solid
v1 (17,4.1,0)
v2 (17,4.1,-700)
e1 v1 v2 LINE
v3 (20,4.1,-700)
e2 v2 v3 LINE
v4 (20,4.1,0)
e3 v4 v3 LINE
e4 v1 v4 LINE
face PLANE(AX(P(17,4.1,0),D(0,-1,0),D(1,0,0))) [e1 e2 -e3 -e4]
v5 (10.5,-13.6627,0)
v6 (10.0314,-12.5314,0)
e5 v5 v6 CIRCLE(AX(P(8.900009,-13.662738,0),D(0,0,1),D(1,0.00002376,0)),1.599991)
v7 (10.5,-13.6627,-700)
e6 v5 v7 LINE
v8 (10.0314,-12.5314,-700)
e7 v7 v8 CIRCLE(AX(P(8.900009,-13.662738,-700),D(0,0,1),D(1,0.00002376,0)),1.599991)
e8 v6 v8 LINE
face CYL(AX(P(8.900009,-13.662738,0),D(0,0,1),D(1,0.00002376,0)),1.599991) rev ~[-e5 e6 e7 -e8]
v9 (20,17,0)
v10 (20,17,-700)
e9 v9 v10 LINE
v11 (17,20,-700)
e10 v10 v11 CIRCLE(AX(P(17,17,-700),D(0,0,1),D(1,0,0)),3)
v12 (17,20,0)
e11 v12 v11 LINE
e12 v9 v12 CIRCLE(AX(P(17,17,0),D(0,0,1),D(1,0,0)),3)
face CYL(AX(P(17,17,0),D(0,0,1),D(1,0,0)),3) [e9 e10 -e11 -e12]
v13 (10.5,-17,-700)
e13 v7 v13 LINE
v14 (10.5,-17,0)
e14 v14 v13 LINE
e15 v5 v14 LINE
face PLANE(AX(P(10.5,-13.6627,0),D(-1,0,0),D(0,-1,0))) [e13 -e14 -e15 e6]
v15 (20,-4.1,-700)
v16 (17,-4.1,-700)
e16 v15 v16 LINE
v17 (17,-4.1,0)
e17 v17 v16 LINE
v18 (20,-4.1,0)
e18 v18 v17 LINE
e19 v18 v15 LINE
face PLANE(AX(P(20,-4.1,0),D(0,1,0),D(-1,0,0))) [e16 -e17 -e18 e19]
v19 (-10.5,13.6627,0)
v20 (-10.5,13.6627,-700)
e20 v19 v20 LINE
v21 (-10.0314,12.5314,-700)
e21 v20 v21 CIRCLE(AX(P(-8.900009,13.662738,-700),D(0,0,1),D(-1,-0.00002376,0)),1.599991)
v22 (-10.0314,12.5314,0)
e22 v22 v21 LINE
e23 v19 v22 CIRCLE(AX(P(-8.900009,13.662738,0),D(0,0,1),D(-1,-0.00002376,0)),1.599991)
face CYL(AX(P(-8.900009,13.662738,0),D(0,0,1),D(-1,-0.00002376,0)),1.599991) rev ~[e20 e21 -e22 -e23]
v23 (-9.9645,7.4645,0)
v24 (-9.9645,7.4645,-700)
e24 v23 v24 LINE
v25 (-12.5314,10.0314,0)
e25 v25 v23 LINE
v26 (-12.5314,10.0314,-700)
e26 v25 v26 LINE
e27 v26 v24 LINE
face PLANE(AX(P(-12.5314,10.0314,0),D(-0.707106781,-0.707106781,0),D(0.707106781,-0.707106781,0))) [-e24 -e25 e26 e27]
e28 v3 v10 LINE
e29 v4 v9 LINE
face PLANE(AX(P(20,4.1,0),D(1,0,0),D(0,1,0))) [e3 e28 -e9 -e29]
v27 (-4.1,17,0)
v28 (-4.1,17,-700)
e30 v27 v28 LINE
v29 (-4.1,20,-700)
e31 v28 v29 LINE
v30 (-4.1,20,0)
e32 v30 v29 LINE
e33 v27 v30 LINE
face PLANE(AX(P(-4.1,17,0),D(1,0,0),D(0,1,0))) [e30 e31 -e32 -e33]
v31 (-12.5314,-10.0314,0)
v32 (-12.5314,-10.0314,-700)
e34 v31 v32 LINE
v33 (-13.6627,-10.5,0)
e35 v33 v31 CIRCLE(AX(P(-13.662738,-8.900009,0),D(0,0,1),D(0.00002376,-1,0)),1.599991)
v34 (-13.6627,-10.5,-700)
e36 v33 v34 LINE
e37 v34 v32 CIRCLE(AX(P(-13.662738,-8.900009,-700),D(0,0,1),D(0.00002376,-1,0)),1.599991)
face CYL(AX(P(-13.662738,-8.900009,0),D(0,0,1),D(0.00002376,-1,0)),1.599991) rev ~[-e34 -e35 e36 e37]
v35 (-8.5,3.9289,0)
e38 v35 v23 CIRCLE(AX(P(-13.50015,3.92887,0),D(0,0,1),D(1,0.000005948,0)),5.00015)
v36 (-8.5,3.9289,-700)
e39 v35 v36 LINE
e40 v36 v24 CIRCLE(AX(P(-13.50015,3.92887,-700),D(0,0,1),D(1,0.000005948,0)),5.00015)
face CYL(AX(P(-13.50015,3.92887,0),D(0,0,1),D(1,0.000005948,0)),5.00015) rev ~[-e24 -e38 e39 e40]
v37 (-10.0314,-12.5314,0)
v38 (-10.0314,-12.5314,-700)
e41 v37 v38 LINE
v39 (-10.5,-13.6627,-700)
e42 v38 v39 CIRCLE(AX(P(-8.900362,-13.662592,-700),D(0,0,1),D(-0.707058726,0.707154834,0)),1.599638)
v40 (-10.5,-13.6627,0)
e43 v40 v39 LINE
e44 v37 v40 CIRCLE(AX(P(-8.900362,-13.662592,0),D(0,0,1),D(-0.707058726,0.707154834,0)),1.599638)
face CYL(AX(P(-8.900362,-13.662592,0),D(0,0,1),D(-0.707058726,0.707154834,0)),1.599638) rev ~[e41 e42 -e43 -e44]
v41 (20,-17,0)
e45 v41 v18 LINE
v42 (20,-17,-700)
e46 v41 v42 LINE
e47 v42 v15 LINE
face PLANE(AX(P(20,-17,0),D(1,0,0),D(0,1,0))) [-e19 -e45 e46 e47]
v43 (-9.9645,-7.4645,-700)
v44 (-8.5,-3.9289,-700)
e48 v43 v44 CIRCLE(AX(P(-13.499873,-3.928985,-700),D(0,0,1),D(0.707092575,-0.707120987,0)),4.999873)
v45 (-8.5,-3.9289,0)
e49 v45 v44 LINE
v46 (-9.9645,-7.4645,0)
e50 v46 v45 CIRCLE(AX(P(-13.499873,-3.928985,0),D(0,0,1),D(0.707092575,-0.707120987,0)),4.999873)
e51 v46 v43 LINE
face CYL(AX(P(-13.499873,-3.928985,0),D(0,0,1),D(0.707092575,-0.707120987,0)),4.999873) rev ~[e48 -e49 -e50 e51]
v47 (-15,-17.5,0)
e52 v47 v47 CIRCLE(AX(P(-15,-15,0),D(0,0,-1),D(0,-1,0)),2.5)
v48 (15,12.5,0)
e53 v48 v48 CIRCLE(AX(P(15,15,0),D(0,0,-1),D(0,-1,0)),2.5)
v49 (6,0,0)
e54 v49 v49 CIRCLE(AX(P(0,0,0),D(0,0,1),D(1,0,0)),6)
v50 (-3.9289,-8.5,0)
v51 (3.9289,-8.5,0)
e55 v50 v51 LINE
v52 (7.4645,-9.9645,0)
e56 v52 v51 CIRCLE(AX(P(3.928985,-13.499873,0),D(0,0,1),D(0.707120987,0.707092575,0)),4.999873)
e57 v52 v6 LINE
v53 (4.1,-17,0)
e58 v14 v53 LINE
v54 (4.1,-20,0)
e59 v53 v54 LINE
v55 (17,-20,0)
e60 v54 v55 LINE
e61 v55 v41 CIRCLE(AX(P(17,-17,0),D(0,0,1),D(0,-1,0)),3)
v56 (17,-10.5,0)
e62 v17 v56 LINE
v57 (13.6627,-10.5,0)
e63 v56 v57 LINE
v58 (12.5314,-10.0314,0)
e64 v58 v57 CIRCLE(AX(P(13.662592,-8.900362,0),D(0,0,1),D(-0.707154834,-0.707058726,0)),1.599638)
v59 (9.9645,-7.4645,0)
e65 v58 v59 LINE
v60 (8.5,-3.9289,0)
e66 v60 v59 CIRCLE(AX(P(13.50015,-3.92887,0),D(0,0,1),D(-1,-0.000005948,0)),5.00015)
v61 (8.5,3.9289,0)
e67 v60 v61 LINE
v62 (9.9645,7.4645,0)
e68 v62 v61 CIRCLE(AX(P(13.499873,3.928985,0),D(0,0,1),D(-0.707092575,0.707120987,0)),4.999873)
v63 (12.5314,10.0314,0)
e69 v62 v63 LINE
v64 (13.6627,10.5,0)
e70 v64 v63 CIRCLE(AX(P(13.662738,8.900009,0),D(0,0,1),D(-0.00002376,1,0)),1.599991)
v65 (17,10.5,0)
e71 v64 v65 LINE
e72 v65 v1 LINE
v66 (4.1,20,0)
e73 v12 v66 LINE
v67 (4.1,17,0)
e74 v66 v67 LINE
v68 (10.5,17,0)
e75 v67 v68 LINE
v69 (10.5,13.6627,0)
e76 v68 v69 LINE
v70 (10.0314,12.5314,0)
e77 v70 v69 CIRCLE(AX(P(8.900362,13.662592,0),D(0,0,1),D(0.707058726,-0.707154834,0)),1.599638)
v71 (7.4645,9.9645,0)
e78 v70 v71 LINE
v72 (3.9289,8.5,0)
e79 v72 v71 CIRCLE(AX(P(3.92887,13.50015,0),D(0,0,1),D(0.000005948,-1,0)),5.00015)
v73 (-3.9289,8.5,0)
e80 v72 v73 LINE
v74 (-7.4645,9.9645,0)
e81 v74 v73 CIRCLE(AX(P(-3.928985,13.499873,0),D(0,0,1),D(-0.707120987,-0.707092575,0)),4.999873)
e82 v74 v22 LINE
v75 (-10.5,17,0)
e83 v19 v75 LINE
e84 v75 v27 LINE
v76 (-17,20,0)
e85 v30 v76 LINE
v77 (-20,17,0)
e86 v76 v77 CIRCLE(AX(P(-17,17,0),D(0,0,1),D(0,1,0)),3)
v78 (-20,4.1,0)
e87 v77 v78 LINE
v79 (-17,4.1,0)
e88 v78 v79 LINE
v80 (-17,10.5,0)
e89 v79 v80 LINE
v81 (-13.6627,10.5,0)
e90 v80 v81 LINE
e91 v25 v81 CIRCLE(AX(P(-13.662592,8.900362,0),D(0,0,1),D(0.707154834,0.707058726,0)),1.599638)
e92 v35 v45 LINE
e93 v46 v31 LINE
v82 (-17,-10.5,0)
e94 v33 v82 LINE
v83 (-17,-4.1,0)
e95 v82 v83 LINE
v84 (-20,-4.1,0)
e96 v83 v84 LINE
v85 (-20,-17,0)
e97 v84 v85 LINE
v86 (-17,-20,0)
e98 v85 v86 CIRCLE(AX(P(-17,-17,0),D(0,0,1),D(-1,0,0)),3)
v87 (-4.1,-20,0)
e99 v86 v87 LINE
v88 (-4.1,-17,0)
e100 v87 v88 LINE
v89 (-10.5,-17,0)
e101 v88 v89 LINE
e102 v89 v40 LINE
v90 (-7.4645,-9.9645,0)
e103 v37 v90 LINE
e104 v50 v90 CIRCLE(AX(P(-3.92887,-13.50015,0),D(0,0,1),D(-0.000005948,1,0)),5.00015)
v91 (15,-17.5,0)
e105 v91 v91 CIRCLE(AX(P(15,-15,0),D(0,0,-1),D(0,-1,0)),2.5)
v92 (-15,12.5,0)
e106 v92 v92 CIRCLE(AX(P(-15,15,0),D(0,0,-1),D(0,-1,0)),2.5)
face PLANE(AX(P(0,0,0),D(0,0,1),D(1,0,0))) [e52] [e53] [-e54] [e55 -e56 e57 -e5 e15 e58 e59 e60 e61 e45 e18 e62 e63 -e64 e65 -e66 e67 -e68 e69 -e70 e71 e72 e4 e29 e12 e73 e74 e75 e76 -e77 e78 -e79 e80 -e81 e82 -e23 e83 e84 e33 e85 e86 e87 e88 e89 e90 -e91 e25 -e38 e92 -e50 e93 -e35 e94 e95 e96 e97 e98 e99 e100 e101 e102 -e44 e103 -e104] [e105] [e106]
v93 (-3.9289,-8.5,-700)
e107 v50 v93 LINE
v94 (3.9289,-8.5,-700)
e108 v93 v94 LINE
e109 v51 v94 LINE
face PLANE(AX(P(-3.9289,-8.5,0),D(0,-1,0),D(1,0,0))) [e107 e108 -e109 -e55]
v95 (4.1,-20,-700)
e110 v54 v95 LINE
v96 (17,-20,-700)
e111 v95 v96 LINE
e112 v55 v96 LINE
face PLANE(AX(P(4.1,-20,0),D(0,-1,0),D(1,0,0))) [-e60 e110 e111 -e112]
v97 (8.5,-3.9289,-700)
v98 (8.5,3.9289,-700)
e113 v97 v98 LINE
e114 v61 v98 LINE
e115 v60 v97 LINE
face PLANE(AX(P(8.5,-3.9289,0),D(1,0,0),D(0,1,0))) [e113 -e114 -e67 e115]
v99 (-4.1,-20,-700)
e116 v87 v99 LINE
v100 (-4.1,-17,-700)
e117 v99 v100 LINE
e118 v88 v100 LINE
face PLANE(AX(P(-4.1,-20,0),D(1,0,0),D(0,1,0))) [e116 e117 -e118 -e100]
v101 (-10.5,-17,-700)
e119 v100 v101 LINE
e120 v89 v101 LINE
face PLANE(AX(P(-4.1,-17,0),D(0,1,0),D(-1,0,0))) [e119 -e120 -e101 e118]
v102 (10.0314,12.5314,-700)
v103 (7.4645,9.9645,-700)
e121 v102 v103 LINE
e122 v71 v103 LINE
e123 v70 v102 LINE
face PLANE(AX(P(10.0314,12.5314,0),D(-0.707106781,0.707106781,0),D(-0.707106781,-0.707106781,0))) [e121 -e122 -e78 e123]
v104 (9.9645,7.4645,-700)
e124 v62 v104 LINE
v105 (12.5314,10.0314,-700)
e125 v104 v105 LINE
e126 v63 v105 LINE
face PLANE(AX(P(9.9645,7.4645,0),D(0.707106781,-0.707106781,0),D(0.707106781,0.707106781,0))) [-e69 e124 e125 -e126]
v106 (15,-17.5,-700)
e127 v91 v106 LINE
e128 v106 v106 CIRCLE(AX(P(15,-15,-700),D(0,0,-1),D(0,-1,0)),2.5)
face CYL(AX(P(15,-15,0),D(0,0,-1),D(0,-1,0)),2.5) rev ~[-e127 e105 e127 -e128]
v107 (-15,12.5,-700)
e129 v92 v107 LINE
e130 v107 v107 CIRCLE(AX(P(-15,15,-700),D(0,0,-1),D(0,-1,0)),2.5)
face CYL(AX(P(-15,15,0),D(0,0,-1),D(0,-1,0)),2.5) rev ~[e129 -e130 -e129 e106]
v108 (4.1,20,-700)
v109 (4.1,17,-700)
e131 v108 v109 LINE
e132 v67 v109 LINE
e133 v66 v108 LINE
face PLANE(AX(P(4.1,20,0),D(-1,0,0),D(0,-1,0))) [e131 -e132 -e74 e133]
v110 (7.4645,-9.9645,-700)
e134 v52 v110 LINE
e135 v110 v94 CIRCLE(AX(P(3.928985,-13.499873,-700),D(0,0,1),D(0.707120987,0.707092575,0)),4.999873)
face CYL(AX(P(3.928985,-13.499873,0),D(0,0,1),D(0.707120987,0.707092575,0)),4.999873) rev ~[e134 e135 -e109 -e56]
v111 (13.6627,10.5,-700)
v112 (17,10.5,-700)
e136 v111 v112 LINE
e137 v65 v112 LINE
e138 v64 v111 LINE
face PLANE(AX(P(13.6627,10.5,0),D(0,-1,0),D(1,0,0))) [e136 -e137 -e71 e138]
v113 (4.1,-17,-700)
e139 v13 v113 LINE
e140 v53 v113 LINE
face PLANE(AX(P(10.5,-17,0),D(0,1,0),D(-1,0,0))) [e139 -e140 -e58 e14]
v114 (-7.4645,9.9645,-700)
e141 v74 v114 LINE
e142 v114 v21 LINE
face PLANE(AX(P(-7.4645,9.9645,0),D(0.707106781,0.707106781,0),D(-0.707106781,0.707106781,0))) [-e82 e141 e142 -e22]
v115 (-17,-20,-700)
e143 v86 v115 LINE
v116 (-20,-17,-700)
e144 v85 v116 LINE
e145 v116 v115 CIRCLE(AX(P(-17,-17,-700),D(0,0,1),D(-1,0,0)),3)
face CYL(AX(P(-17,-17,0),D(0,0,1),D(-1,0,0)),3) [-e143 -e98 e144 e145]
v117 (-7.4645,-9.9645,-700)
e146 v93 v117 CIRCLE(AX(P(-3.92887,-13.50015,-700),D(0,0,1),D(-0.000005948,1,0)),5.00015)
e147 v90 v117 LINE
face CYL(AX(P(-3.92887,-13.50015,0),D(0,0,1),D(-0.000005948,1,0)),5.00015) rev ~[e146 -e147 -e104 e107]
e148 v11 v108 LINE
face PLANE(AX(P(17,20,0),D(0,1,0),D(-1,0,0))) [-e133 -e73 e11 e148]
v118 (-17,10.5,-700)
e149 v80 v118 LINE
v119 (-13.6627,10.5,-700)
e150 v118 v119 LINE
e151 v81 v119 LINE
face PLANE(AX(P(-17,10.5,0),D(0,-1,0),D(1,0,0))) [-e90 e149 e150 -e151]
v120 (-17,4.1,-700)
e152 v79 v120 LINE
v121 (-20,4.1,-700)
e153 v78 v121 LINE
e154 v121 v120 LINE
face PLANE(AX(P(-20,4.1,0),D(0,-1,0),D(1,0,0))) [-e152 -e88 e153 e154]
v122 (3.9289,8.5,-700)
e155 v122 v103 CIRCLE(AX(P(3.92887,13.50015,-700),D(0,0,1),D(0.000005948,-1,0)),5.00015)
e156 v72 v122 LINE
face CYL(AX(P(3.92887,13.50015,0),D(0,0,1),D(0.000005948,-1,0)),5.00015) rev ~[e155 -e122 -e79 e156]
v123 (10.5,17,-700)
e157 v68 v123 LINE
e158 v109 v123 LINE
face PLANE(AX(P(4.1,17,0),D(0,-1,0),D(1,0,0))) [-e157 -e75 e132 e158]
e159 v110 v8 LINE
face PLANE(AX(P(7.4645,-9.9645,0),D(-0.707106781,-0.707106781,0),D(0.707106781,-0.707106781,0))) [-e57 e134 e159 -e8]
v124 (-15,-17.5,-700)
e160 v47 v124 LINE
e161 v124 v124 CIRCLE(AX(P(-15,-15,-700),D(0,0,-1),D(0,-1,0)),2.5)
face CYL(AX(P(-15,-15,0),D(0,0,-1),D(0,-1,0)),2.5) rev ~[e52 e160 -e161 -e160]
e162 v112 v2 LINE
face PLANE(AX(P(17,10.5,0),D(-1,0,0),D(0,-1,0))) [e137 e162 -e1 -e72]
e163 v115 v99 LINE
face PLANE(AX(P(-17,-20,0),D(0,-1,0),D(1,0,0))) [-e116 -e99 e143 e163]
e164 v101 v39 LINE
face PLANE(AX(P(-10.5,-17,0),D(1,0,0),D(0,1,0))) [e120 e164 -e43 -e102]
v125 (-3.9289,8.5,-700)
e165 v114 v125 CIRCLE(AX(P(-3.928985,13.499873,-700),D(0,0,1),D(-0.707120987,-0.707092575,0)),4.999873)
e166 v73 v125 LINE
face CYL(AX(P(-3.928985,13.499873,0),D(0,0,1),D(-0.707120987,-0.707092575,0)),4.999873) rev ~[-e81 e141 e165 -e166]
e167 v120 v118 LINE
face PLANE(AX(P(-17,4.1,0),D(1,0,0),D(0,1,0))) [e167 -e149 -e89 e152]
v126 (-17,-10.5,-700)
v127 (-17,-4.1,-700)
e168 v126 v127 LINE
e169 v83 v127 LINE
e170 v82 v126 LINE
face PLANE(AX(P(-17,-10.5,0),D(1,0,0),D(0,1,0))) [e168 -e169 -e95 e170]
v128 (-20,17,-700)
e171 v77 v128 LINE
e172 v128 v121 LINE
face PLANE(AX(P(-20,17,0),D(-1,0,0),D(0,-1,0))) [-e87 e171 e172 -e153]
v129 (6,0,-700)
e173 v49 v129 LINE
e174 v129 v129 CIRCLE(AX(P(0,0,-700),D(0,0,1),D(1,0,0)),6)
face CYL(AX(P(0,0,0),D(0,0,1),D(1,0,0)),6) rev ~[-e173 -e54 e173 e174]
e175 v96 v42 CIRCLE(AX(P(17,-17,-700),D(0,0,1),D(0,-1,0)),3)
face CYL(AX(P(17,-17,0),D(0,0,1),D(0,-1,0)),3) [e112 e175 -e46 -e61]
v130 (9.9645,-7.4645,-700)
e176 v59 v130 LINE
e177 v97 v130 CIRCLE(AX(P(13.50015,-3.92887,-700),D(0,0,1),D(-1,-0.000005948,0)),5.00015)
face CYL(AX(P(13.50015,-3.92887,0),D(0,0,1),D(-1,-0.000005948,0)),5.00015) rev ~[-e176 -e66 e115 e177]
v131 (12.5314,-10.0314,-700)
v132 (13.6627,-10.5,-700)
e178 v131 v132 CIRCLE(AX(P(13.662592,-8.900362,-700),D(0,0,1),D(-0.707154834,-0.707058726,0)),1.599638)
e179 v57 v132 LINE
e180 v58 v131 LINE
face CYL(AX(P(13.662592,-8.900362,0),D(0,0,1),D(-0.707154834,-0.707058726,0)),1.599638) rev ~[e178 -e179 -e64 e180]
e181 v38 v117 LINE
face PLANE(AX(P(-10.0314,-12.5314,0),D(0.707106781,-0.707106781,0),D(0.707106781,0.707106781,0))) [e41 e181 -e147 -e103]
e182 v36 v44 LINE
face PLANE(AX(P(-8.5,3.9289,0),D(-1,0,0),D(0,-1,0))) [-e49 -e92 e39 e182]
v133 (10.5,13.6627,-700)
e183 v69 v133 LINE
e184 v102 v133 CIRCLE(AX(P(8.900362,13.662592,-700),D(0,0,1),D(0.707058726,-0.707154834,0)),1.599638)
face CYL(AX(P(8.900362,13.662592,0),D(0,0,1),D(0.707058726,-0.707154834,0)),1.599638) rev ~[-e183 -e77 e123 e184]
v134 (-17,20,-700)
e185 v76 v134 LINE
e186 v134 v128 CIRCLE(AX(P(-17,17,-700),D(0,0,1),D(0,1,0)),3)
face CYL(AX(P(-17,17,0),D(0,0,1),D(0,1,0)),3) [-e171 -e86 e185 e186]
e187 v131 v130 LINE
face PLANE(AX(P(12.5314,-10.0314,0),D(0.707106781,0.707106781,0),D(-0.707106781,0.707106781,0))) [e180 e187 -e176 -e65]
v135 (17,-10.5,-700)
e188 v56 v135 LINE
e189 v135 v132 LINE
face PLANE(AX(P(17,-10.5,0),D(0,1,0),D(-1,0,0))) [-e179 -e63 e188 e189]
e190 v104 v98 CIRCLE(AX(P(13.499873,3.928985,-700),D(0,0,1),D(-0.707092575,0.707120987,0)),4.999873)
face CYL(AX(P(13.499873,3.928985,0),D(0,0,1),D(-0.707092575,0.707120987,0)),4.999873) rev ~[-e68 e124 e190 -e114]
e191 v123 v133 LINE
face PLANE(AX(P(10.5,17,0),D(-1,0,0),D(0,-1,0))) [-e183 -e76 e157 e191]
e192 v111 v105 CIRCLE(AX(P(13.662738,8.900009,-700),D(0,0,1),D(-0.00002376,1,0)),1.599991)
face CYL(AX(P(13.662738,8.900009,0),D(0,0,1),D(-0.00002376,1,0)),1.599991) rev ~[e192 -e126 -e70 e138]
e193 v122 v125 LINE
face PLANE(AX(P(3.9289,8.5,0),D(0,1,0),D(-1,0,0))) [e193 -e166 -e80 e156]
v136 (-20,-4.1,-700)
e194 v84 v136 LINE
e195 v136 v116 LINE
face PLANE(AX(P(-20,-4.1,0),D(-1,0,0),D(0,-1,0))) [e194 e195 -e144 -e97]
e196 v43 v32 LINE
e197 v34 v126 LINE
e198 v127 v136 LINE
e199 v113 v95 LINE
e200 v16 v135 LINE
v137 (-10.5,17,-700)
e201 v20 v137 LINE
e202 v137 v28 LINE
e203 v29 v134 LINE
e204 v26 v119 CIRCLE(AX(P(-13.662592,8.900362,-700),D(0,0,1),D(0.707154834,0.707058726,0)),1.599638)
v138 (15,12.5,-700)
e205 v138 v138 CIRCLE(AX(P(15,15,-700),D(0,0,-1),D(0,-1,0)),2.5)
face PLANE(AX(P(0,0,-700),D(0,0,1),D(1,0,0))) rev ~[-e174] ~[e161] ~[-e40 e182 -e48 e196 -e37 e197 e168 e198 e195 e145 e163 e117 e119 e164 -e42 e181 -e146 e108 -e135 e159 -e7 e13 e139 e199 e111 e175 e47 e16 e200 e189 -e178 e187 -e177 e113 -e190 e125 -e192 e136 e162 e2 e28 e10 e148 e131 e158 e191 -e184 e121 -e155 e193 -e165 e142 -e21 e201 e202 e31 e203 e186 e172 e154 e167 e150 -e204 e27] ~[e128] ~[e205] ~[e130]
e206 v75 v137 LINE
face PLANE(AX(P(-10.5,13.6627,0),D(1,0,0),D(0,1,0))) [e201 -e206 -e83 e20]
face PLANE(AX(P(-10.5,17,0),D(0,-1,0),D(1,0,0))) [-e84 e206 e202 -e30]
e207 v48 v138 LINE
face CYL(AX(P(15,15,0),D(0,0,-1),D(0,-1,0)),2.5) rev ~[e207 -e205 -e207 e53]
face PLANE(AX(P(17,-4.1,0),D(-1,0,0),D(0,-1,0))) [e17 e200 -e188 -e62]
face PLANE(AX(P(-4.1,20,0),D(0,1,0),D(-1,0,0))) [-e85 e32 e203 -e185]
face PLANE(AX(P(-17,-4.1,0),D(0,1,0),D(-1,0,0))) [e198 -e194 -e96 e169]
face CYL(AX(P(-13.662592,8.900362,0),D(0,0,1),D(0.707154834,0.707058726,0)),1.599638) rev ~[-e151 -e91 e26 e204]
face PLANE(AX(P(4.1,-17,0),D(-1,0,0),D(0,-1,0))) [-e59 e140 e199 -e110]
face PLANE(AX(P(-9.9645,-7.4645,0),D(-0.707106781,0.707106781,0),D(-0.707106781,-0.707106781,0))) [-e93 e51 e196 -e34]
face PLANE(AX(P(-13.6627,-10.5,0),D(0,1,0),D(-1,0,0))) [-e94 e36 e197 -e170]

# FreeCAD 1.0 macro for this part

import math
import FreeCAD as App
import Part
import Sketcher
Q = App.Units.Quantity

doc = App.newDocument("Part")
body = doc.addObject("PartDesign::Body", "Body")

# Sketch on XY plane
sketch1 = doc.addObject("Sketcher::SketchObject", "Sketch")
body.addObject(sketch1)
sketch1.AttachmentSupport = (doc.XY_Plane, [""])
sketch1.MapMode = "FlatFace"
sketch1.addGeometry(Part.LineSegment(App.Vector(-20, -4.1, 0), App.Vector(-20, -17, 0)), False)
sketch1.addGeometry(Part.ArcOfCircle(Part.Circle(App.Vector(-17, -17, 0), App.Vector(0, 0, 1), 3), math.radians(180), math.radians(270)), False)
sketch1.addGeometry(Part.LineSegment(App.Vector(-17, -20, 0), App.Vector(-4.1, -20, 0)), False)
sketch1.addGeometry(Part.LineSegment(App.Vector(-4.1, -20, 0), App.Vector(-4.1, -17, 0)), False)
sketch1.addGeometry(Part.LineSegment(App.Vector(-4.1, -17, 0), App.Vector(-10.5, -17, 0)), False)
sketch1.addGeometry(Part.LineSegment(App.Vector(-10.5, -17, 0), App.Vector(-10.5, -13.7, 0)), False)
sketch1.addGeometry(Part.ArcOfCircle(Part.Circle(App.Vector(-8.9, -13.7, 0), App.Vector(0, 0, 1), 1.6), math.radians(135), math.radians(180)), False)
sketch1.addGeometry(Part.LineSegment(App.Vector(-10, -12.5, 0), App.Vector(-7.5, -10, 0)), False)
sketch1.addGeometry(Part.ArcOfCircle(Part.Circle(App.Vector(-3.9, -13.5, 0), App.Vector(0, 0, 1), 5), math.radians(90), math.radians(135)), False)
sketch1.addGeometry(Part.LineSegment(App.Vector(-3.9, -8.5, 0), App.Vector(3.9, -8.5, 0)), False)
sketch1.addGeometry(Part.ArcOfCircle(Part.Circle(App.Vector(3.9, -13.5, 0), App.Vector(0, 0, 1), 5), math.radians(45), math.radians(90)), False)
sketch1.addGeometry(Part.LineSegment(App.Vector(7.5, -10, 0), App.Vector(10, -12.5, 0)), False)
sketch1.addGeometry(Part.ArcOfCircle(Part.Circle(App.Vector(8.9, -13.7, 0), App.Vector(0, 0, 1), 1.6), math.radians(0), math.radians(45)), False)
sketch1.addGeometry(Part.LineSegment(App.Vector(10.5, -13.7, 0), App.Vector(10.5, -17, 0)), False)
sketch1.addGeometry(Part.LineSegment(App.Vector(10.5, -17, 0), App.Vector(4.1, -17, 0)), False)
sketch1.addGeometry(Part.LineSegment(App.Vector(4.1, -17, 0), App.Vector(4.1, -20, 0)), False)
sketch1.addGeometry(Part.LineSegment(App.Vector(4.1, -20, 0), App.Vector(17, -20, 0)), False)
sketch1.addGeometry(Part.ArcOfCircle(Part.Circle(App.Vector(17, -17, 0), App.Vector(0, 0, 1), 3), math.radians(-90), math.radians(0)), False)
sketch1.addGeometry(Part.LineSegment(App.Vector(20, -17, 0), App.Vector(20, -4.1, 0)), False)
sketch1.addGeometry(Part.LineSegment(App.Vector(20, -4.1, 0), App.Vector(17, -4.1, 0)), False)
sketch1.addGeometry(Part.LineSegment(App.Vector(17, -4.1, 0), App.Vector(17, -10.5, 0)), False)
sketch1.addGeometry(Part.LineSegment(App.Vector(17, -10.5, 0), App.Vector(13.7, -10.5, 0)), False)
sketch1.addGeometry(Part.ArcOfCircle(Part.Circle(App.Vector(13.7, -8.9, 0), App.Vector(0, 0, 1), 1.6), math.radians(-135), math.radians(-90)), False)
sketch1.addGeometry(Part.LineSegment(App.Vector(12.5, -10, 0), App.Vector(10, -7.5, 0)), False)
sketch1.addGeometry(Part.ArcOfCircle(Part.Circle(App.Vector(13.5, -3.9, 0), App.Vector(0, 0, 1), 5), math.radians(180), math.radians(225)), False)
sketch1.addGeometry(Part.LineSegment(App.Vector(8.5, -3.9, 0), App.Vector(8.5, 3.9, 0)), False)
sketch1.addGeometry(Part.ArcOfCircle(Part.Circle(App.Vector(13.5, 3.9, 0), App.Vector(0, 0, 1), 5), math.radians(135), math.radians(180)), False)
sketch1.addGeometry(Part.LineSegment(App.Vector(10, 7.5, 0), App.Vector(12.5, 10, 0)), False)
sketch1.addGeometry(Part.ArcOfCircle(Part.Circle(App.Vector(13.7, 8.9, 0), App.Vector(0, 0, 1), 1.6), math.radians(90), math.radians(135)), False)
sketch1.addGeometry(Part.LineSegment(App.Vector(13.7, 10.5, 0), App.Vector(17, 10.5, 0)), False)
sketch1.addGeometry(Part.LineSegment(App.Vector(17, 10.5, 0), App.Vector(17, 4.1, 0)), False)
sketch1.addGeometry(Part.LineSegment(App.Vector(17, 4.1, 0), App.Vector(20, 4.1, 0)), False)
sketch1.addGeometry(Part.LineSegment(App.Vector(20, 4.1, 0), App.Vector(20, 17, 0)), False)
sketch1.addGeometry(Part.ArcOfCircle(Part.Circle(App.Vector(17, 17, 0), App.Vector(0, 0, 1), 3), math.radians(0), math.radians(90)), False)
sketch1.addGeometry(Part.LineSegment(App.Vector(17, 20, 0), App.Vector(4.1, 20, 0)), False)
sketch1.addGeometry(Part.LineSegment(App.Vector(4.1, 20, 0), App.Vector(4.1, 17, 0)), False)
sketch1.addGeometry(Part.LineSegment(App.Vector(4.1, 17, 0), App.Vector(10.5, 17, 0)), False)
sketch1.addGeometry(Part.LineSegment(App.Vector(10.5, 17, 0), App.Vector(10.5, 13.7, 0)), False)
sketch1.addGeometry(Part.ArcOfCircle(Part.Circle(App.Vector(8.9, 13.7, 0), App.Vector(0, 0, 1), 1.6), math.radians(-45), math.radians(0)), False)
sketch1.addGeometry(Part.LineSegment(App.Vector(10, 12.5, 0), App.Vector(7.5, 10, 0)), False)
sketch1.addGeometry(Part.ArcOfCircle(Part.Circle(App.Vector(3.9, 13.5, 0), App.Vector(0, 0, 1), 5), math.radians(-90), math.radians(-45)), False)
sketch1.addGeometry(Part.LineSegment(App.Vector(3.9, 8.5, 0), App.Vector(-3.9, 8.5, 0)), False)
sketch1.addGeometry(Part.ArcOfCircle(Part.Circle(App.Vector(-3.9, 13.5, 0), App.Vector(0, 0, 1), 5), math.radians(-135), math.radians(-90)), False)
sketch1.addGeometry(Part.LineSegment(App.Vector(-7.5, 10, 0), App.Vector(-10, 12.5, 0)), False)
sketch1.addGeometry(Part.ArcOfCircle(Part.Circle(App.Vector(-8.9, 13.7, 0), App.Vector(0, 0, 1), 1.6), math.radians(180), math.radians(225)), False)
sketch1.addGeometry(Part.LineSegment(App.Vector(-10.5, 13.7, 0), App.Vector(-10.5, 17, 0)), False)
sketch1.addGeometry(Part.LineSegment(App.Vector(-10.5, 17, 0), App.Vector(-4.1, 17, 0)), False)
sketch1.addGeometry(Part.LineSegment(App.Vector(-4.1, 17, 0), App.Vector(-4.1, 20, 0)), False)
sketch1.addGeometry(Part.LineSegment(App.Vector(-4.1, 20, 0), App.Vector(-17, 20, 0)), False)
sketch1.addGeometry(Part.ArcOfCircle(Part.Circle(App.Vector(-17, 17, 0), App.Vector(0, 0, 1), 3), math.radians(90), math.radians(180)), False)
sketch1.addGeometry(Part.LineSegment(App.Vector(-20, 17, 0), App.Vector(-20, 4.1, 0)), False)
sketch1.addGeometry(Part.LineSegment(App.Vector(-20, 4.1, 0), App.Vector(-17, 4.1, 0)), False)
sketch1.addGeometry(Part.LineSegment(App.Vector(-17, 4.1, 0), App.Vector(-17, 10.5, 0)), False)
sketch1.addGeometry(Part.LineSegment(App.Vector(-17, 10.5, 0), App.Vector(-13.7, 10.5, 0)), False)
sketch1.addGeometry(Part.ArcOfCircle(Part.Circle(App.Vector(-13.7, 8.9, 0), App.Vector(0, 0, 1), 1.6), math.radians(45), math.radians(90)), False)
sketch1.addGeometry(Part.LineSegment(App.Vector(-12.5, 10, 0), App.Vector(-10, 7.5, 0)), False)
sketch1.addGeometry(Part.ArcOfCircle(Part.Circle(App.Vector(-13.5, 3.9, 0), App.Vector(0, 0, 1), 5), math.radians(0), math.radians(45)), False)
sketch1.addGeometry(Part.LineSegment(App.Vector(-8.5, 3.9, 0), App.Vector(-8.5, -3.9, 0)), False)
sketch1.addGeometry(Part.ArcOfCircle(Part.Circle(App.Vector(-13.5, -3.9, 0), App.Vector(0, 0, 1), 5), math.radians(-45), math.radians(0)), False)
sketch1.addGeometry(Part.LineSegment(App.Vector(-10, -7.5, 0), App.Vector(-12.5, -10, 0)), False)
sketch1.addGeometry(Part.ArcOfCircle(Part.Circle(App.Vector(-13.7, -8.9, 0), App.Vector(0, 0, 1), 1.6), math.radians(-90), math.radians(-45)), False)
sketch1.addGeometry(Part.LineSegment(App.Vector(-13.7, -10.5, 0), App.Vector(-17, -10.5, 0)), False)
sketch1.addGeometry(Part.LineSegment(App.Vector(-17, -10.5, 0), App.Vector(-17, -4.1, 0)), False)
sketch1.addGeometry(Part.LineSegment(App.Vector(-17, -4.1, 0), App.Vector(-20, -4.1, 0)), False)
sketch1.addGeometry(Part.Circle(App.Vector(0, 0, 0), App.Vector(0, 0, 1), 6), False)
sketch1.addConstraint(Sketcher.Constraint("Tangent", 0, 2, 1, 1))
sketch1.addConstraint(Sketcher.Constraint("Tangent", 1, 2, 2, 1))
sketch1.addConstraint(Sketcher.Constraint("Coincident", 2, 2, 3, 1))
sketch1.addConstraint(Sketcher.Constraint("Coincident", 3, 2, 4, 1))
sketch1.addConstraint(Sketcher.Constraint("Coincident", 4, 2, 5, 1))
sketch1.addConstraint(Sketcher.Constraint("Tangent", 5, 2, 6, 2))
sketch1.addConstraint(Sketcher.Constraint("Tangent", 6, 1, 7, 1))
sketch1.addConstraint(Sketcher.Constraint("Tangent", 7, 2, 8, 2))
sketch1.addConstraint(Sketcher.Constraint("Tangent", 8, 1, 9, 1))
sketch1.addConstraint(Sketcher.Constraint("Tangent", 9, 2, 10, 2))
sketch1.addConstraint(Sketcher.Constraint("Tangent", 10, 1, 11, 1))
sketch1.addConstraint(Sketcher.Constraint("Tangent", 11, 2, 12, 2))
sketch1.addConstraint(Sketcher.Constraint("Tangent", 12, 1, 13, 1))
sketch1.addConstraint(Sketcher.Constraint("Coincident", 13, 2, 14, 1))
sketch1.addConstraint(Sketcher.Constraint("Coincident", 14, 2, 15, 1))
sketch1.addConstraint(Sketcher.Constraint("Coincident", 15, 2, 16, 1))
sketch1.addConstraint(Sketcher.Constraint("Tangent", 16, 2, 17, 1))
sketch1.addConstraint(Sketcher.Constraint("Tangent", 17, 2, 18, 1))
sketch1.addConstraint(Sketcher.Constraint("Coincident", 18, 2, 19, 1))
sketch1.addConstraint(Sketcher.Constraint("Coincident", 19, 2, 20, 1))
sketch1.addConstraint(Sketcher.Constraint("Coincident", 20, 2, 21, 1))
sketch1.addConstraint(Sketcher.Constraint("Tangent", 21, 2, 22, 2))
sketch1.addConstraint(Sketcher.Constraint("Tangent", 22, 1, 23, 1))
sketch1.addConstraint(Sketcher.Constraint("Tangent", 23, 2, 24, 2))
sketch1.addConstraint(Sketcher.Constraint("Tangent", 24, 1, 25, 1))
sketch1.addConstraint(Sketcher.Constraint("Tangent", 25, 2, 26, 2))
sketch1.addConstraint(Sketcher.Constraint("Tangent", 26, 1, 27, 1))
sketch1.addConstraint(Sketcher.Constraint("Tangent", 27, 2, 28, 2))
sketch1.addConstraint(Sketcher.Constraint("Tangent", 28, 1, 29, 1))
sketch1.addConstraint(Sketcher.Constraint("Coincident", 29, 2, 30, 1))
sketch1.addConstraint(Sketcher.Constraint("Coincident", 30, 2, 31, 1))
sketch1.addConstraint(Sketcher.Constraint("Coincident", 31, 2, 32, 1))
sketch1.addConstraint(Sketcher.Constraint("Tangent", 32, 2, 33, 1))
sketch1.addConstraint(Sketcher.Constraint("Tangent", 33, 2, 34, 1))
sketch1.addConstraint(Sketcher.Constraint("Coincident", 34, 2, 35, 1))
sketch1.addConstraint(Sketcher.Constraint("Coincident", 35, 2, 36, 1))
sketch1.addConstraint(Sketcher.Constraint("Coincident", 36, 2, 37, 1))
sketch1.addConstraint(Sketcher.Constraint("Tangent", 37, 2, 38, 2))
sketch1.addConstraint(Sketcher.Constraint("Tangent", 38, 1, 39, 1))
sketch1.addConstraint(Sketcher.Constraint("Tangent", 39, 2, 40, 2))
sketch1.addConstraint(Sketcher.Constraint("Tangent", 40, 1, 41, 1))
sketch1.addConstraint(Sketcher.Constraint("Tangent", 41, 2, 42, 2))
sketch1.addConstraint(Sketcher.Constraint("Tangent", 42, 1, 43, 1))
sketch1.addConstraint(Sketcher.Constraint("Tangent", 43, 2, 44, 2))
sketch1.addConstraint(Sketcher.Constraint("Tangent", 44, 1, 45, 1))
sketch1.addConstraint(Sketcher.Constraint("Coincident", 45, 2, 46, 1))
sketch1.addConstraint(Sketcher.Constraint("Coincident", 46, 2, 47, 1))
sketch1.addConstraint(Sketcher.Constraint("Coincident", 47, 2, 48, 1))
sketch1.addConstraint(Sketcher.Constraint("Tangent", 48, 2, 49, 1))
sketch1.addConstraint(Sketcher.Constraint("Tangent", 49, 2, 50, 1))
sketch1.addConstraint(Sketcher.Constraint("Coincident", 50, 2, 51, 1))
sketch1.addConstraint(Sketcher.Constraint("Coincident", 51, 2, 52, 1))
sketch1.addConstraint(Sketcher.Constraint("Coincident", 52, 2, 53, 1))
sketch1.addConstraint(Sketcher.Constraint("Tangent", 53, 2, 54, 2))
sketch1.addConstraint(Sketcher.Constraint("Tangent", 54, 1, 55, 1))
sketch1.addConstraint(Sketcher.Constraint("Tangent", 55, 2, 56, 2))
sketch1.addConstraint(Sketcher.Constraint("Tangent", 56, 1, 57, 1))
sketch1.addConstraint(Sketcher.Constraint("Tangent", 57, 2, 58, 2))
sketch1.addConstraint(Sketcher.Constraint("Tangent", 58, 1, 59, 1))
sketch1.addConstraint(Sketcher.Constraint("Tangent", 59, 2, 60, 2))
sketch1.addConstraint(Sketcher.Constraint("Tangent", 60, 1, 61, 1))
sketch1.addConstraint(Sketcher.Constraint("Coincident", 61, 2, 62, 1))
sketch1.addConstraint(Sketcher.Constraint("Coincident", 62, 2, 63, 1))
sketch1.addConstraint(Sketcher.Constraint("Coincident", 63, 2, 0, 1))
sketch1.addConstraint(Sketcher.Constraint("Vertical", 0))
sketch1.addConstraint(Sketcher.Constraint("Horizontal", 2))
sketch1.addConstraint(Sketcher.Constraint("Vertical", 3))
sketch1.addConstraint(Sketcher.Constraint("Horizontal", 4))
sketch1.addConstraint(Sketcher.Constraint("Vertical", 5))
sketch1.addConstraint(Sketcher.Constraint("Horizontal", 9))
sketch1.addConstraint(Sketcher.Constraint("Vertical", 13))
sketch1.addConstraint(Sketcher.Constraint("Horizontal", 14))
sketch1.addConstraint(Sketcher.Constraint("Vertical", 15))
sketch1.addConstraint(Sketcher.Constraint("Horizontal", 16))
sketch1.addConstraint(Sketcher.Constraint("Vertical", 18))
sketch1.addConstraint(Sketcher.Constraint("Horizontal", 19))
sketch1.addConstraint(Sketcher.Constraint("Vertical", 20))
sketch1.addConstraint(Sketcher.Constraint("Horizontal", 21))
sketch1.addConstraint(Sketcher.Constraint("Vertical", 25))
sketch1.addConstraint(Sketcher.Constraint("Horizontal", 29))
sketch1.addConstraint(Sketcher.Constraint("Vertical", 30))
sketch1.addConstraint(Sketcher.Constraint("Horizontal", 31))
sketch1.addConstraint(Sketcher.Constraint("Vertical", 32))
sketch1.addConstraint(Sketcher.Constraint("Horizontal", 34))
sketch1.addConstraint(Sketcher.Constraint("Vertical", 35))
sketch1.addConstraint(Sketcher.Constraint("Horizontal", 36))
sketch1.addConstraint(Sketcher.Constraint("Vertical", 37))
sketch1.addConstraint(Sketcher.Constraint("Horizontal", 41))
sketch1.addConstraint(Sketcher.Constraint("Vertical", 45))
sketch1.addConstraint(Sketcher.Constraint("Horizontal", 46))
sketch1.addConstraint(Sketcher.Constraint("Vertical", 47))
sketch1.addConstraint(Sketcher.Constraint("Horizontal", 48))
sketch1.addConstraint(Sketcher.Constraint("Vertical", 50))
sketch1.addConstraint(Sketcher.Constraint("Horizontal", 51))
sketch1.addConstraint(Sketcher.Constraint("Vertical", 52))
sketch1.addConstraint(Sketcher.Constraint("Horizontal", 53))
sketch1.addConstraint(Sketcher.Constraint("Vertical", 57))
sketch1.addConstraint(Sketcher.Constraint("Horizontal", 61))
sketch1.addConstraint(Sketcher.Constraint("Vertical", 62))
sketch1.addConstraint(Sketcher.Constraint("Horizontal", 63))
sketch1.addConstraint(Sketcher.Constraint("Coincident", 64, 3, -1, 1))
sketch1.addConstraint(Sketcher.Constraint("Equal", 8, 10))
sketch1.addConstraint(Sketcher.Constraint("Equal", 6, 12))
sketch1.addConstraint(Sketcher.Constraint("Equal", 1, 17))
sketch1.addConstraint(Sketcher.Constraint("Equal", 12, 22))
sketch1.addConstraint(Sketcher.Constraint("Equal", 10, 24))
sketch1.addConstraint(Sketcher.Constraint("Equal", 24, 26))
sketch1.addConstraint(Sketcher.Constraint("Equal", 22, 28))
sketch1.addConstraint(Sketcher.Constraint("Equal", 17, 33))
sketch1.addConstraint(Sketcher.Constraint("Equal", 28, 38))
sketch1.addConstraint(Sketcher.Constraint("Equal", 26, 40))
sketch1.addConstraint(Sketcher.Constraint("Equal", 40, 42))
sketch1.addConstraint(Sketcher.Constraint("Equal", 38, 44))
sketch1.addConstraint(Sketcher.Constraint("Equal", 33, 49))
sketch1.addConstraint(Sketcher.Constraint("Equal", 44, 54))
sketch1.addConstraint(Sketcher.Constraint("Equal", 42, 56))
sketch1.addConstraint(Sketcher.Constraint("Equal", 56, 58))
sketch1.addConstraint(Sketcher.Constraint("Equal", 54, 60))
sketch1.addConstraint(Sketcher.Constraint("Symmetric", 1, 3, 33, 3, -1, 1))
sketch1.addConstraint(Sketcher.Constraint("Symmetric", 6, 3, 38, 3, -1, 1))
sketch1.addConstraint(Sketcher.Constraint("Symmetric", 8, 3, 40, 3, -1, 1))
sketch1.addConstraint(Sketcher.Constraint("Symmetric", 12, 3, 44, 3, -1, 1))
sketch1.addConstraint(Sketcher.Constraint("Symmetric", 17, 3, 49, 3, -1, 1))
sketch1.addConstraint(Sketcher.Constraint("Symmetric", 22, 3, 54, 3, -1, 1))
sketch1.addConstraint(Sketcher.Constraint("Symmetric", 24, 3, 56, 3, -1, 1))
sketch1.addConstraint(Sketcher.Constraint("Symmetric", 28, 3, 60, 3, -1, 1))
sketch1.addConstraint(Sketcher.Constraint("Symmetric", 3, 2, 35, 2, -1, 1))
sketch1.addConstraint(Sketcher.Constraint("Symmetric", 14, 2, 46, 2, -1, 1))
sketch1.addConstraint(Sketcher.Constraint("Symmetric", 19, 2, 51, 2, -1, 1))
sketch1.addConstraint(Sketcher.Constraint("Symmetric", 30, 2, 62, 2, -1, 1))
sketch1.addConstraint(Sketcher.Constraint("Symmetric", 6, 3, 12, 3, -2))
sketch1.addConstraint(Sketcher.Constraint("Symmetric", 1, 3, 17, 3, -2))
sketch1.addConstraint(Sketcher.Constraint("Symmetric", 28, 3, 54, 3, -2))
sketch1.addConstraint(Sketcher.Constraint("Symmetric", 3, 2, 14, 2, -2))
sketch1.addConstraint(Sketcher.Constraint("Symmetric", 30, 2, 51, 2, -2))
sketch1.addConstraint(Sketcher.Constraint("Perpendicular", 7, 11))
sketch1.addConstraint(Sketcher.Constraint("Parallel", 11, 23))
sketch1.addConstraint(Sketcher.Constraint("Perpendicular", 23, 27))
sketch1.addConstraint(Sketcher.Constraint("Perpendicular", 39, 43))
sketch1.addConstraint(Sketcher.Constraint("Perpendicular", 55, 59))
sketch1.addConstraint(Sketcher.Constraint("Horizontal", 26, 3, 56, 3))
sketch1.addConstraint(Sketcher.Constraint("Horizontal", 0, 2, 3, 2))
sketch1.addConstraint(Sketcher.Constraint("Vertical", 16, 2, 19, 2))
sketch1.addConstraint(Sketcher.Constraint("Equal", 48, 0))
sketch1.addConstraint(Sketcher.Constraint("Equal", 61, 5))
sketch1.addConstraint(Sketcher.Constraint("Equal", 46, 20))
sketch1.addConstraint(Sketcher.Constraint("Equal", 41, 25))
sketch1.addConstraint(Sketcher.Constraint("Equal", 11, 23))
sketch1.addConstraint(Sketcher.Constraint("Diameter", 64, Q("12 mm")))
sketch1.addConstraint(Sketcher.Constraint("Radius", 1, Q("3 mm")))
sketch1.addConstraint(Sketcher.Constraint("Radius", 8, Q("5 mm")))
sketch1.addConstraint(Sketcher.Constraint("DistanceX", 2, 1, 2, 2, Q("12.9 mm")))
sketch1.addConstraint(Sketcher.Constraint("DistanceX", 4, 2, 4, 1, Q("6.4 mm")))
sketch1.addConstraint(Sketcher.Constraint("DistanceX", 1, 3, -1, 1, Q("17 mm")))
sketch1.addConstraint(Sketcher.Constraint("DistanceY", 8, 3, -1, 1, Q("13.5 mm")))
sketch1.addConstraint(Sketcher.Constraint("Radius", 6, Q("1.5998 mm")))
sketch1.addConstraint(Sketcher.Constraint("DistanceX", 9, 1, 9, 2, Q("7.8578 mm")))
pad1 = doc.addObject("PartDesign::Pad", "Pad")
body.addObject(pad1)
pad1.Profile = sketch1
pad1.Length = 700
pad1.Reversed = True

# Sketch on XY plane
sketch2 = doc.addObject("Sketcher::SketchObject", "Sketch001")
body.addObject(sketch2)
sketch2.AttachmentSupport = (doc.XY_Plane, [""])
sketch2.MapMode = "FlatFace"
sketch2.addGeometry(Part.Circle(App.Vector(-15, -15, 0), App.Vector(0, 0, 1), 2.5), False)
sketch2.addConstraint(Sketcher.Constraint("Diameter", 0, Q("5 mm")))
sketch2.addConstraint(Sketcher.Constraint("DistanceX", 0, 3, -1, 1, Q("15 mm")))
sketch2.addConstraint(Sketcher.Constraint("DistanceY", 0, 3, -1, 1, Q("15 mm")))
doc.recompute()
hole = doc.addObject("PartDesign::Hole", "Hole")
body.addObject(hole)
hole.Profile = sketch2
hole.ThreadType = "None"
hole.Diameter = 5
hole.DepthType = "Dimension"
hole.Depth = 6000
hole.DrillPoint = "Flat"

# Sketch on XY plane
sketch3 = doc.addObject("Sketcher::SketchObject", "Sketch002")
body.addObject(sketch3)
sketch3.AttachmentSupport = (doc.XY_Plane, [""])
sketch3.MapMode = "FlatFace"
sketch3.addGeometry(Part.Circle(App.Vector(15, -15, 0), App.Vector(0, 0, 1), 2.5), False)
sketch3.addConstraint(Sketcher.Constraint("Diameter", 0, Q("5 mm")))
sketch3.addConstraint(Sketcher.Constraint("DistanceX", -1, 1, 0, 3, Q("15 mm")))
sketch3.addConstraint(Sketcher.Constraint("DistanceY", 0, 3, -1, 1, Q("15 mm")))
doc.recompute()
hole2 = doc.addObject("PartDesign::Hole", "Hole001")
body.addObject(hole2)
hole2.Profile = sketch3
hole2.ThreadType = "None"
hole2.Diameter = 5
hole2.DepthType = "Dimension"
hole2.Depth = 6000
hole2.DrillPoint = "Flat"

# Sketch on XY plane
sketch4 = doc.addObject("Sketcher::SketchObject", "Sketch003")
body.addObject(sketch4)
sketch4.AttachmentSupport = (doc.XY_Plane, [""])
sketch4.MapMode = "FlatFace"
sketch4.addGeometry(Part.Circle(App.Vector(15, 15, 0), App.Vector(0, 0, 1), 2.5), False)
sketch4.addConstraint(Sketcher.Constraint("Diameter", 0, Q("5 mm")))
sketch4.addConstraint(Sketcher.Constraint("DistanceX", -1, 1, 0, 3, Q("15 mm")))
sketch4.addConstraint(Sketcher.Constraint("DistanceY", -1, 1, 0, 3, Q("15 mm")))
doc.recompute()
hole3 = doc.addObject("PartDesign::Hole", "Hole002")
body.addObject(hole3)
hole3.Profile = sketch4
hole3.ThreadType = "None"
hole3.Diameter = 5
hole3.DepthType = "Dimension"
hole3.Depth = 6000
hole3.DrillPoint = "Flat"

# Sketch on XY plane
sketch5 = doc.addObject("Sketcher::SketchObject", "Sketch004")
body.addObject(sketch5)
sketch5.AttachmentSupport = (doc.XY_Plane, [""])
sketch5.MapMode = "FlatFace"
sketch5.addGeometry(Part.Circle(App.Vector(-15, 15, 0), App.Vector(0, 0, 1), 2.5), False)
sketch5.addConstraint(Sketcher.Constraint("Diameter", 0, Q("5 mm")))
sketch5.addConstraint(Sketcher.Constraint("DistanceX", 0, 3, -1, 1, Q("15 mm")))
sketch5.addConstraint(Sketcher.Constraint("DistanceY", -1, 1, 0, 3, Q("15 mm")))
doc.recompute()
hole4 = doc.addObject("PartDesign::Hole", "Hole003")
body.addObject(hole4)
hole4.Profile = sketch5
hole4.ThreadType = "None"
hole4.Diameter = 5
hole4.DepthType = "Dimension"
hole4.Depth = 6000
hole4.DrillPoint = "Flat"

doc.recompute()
